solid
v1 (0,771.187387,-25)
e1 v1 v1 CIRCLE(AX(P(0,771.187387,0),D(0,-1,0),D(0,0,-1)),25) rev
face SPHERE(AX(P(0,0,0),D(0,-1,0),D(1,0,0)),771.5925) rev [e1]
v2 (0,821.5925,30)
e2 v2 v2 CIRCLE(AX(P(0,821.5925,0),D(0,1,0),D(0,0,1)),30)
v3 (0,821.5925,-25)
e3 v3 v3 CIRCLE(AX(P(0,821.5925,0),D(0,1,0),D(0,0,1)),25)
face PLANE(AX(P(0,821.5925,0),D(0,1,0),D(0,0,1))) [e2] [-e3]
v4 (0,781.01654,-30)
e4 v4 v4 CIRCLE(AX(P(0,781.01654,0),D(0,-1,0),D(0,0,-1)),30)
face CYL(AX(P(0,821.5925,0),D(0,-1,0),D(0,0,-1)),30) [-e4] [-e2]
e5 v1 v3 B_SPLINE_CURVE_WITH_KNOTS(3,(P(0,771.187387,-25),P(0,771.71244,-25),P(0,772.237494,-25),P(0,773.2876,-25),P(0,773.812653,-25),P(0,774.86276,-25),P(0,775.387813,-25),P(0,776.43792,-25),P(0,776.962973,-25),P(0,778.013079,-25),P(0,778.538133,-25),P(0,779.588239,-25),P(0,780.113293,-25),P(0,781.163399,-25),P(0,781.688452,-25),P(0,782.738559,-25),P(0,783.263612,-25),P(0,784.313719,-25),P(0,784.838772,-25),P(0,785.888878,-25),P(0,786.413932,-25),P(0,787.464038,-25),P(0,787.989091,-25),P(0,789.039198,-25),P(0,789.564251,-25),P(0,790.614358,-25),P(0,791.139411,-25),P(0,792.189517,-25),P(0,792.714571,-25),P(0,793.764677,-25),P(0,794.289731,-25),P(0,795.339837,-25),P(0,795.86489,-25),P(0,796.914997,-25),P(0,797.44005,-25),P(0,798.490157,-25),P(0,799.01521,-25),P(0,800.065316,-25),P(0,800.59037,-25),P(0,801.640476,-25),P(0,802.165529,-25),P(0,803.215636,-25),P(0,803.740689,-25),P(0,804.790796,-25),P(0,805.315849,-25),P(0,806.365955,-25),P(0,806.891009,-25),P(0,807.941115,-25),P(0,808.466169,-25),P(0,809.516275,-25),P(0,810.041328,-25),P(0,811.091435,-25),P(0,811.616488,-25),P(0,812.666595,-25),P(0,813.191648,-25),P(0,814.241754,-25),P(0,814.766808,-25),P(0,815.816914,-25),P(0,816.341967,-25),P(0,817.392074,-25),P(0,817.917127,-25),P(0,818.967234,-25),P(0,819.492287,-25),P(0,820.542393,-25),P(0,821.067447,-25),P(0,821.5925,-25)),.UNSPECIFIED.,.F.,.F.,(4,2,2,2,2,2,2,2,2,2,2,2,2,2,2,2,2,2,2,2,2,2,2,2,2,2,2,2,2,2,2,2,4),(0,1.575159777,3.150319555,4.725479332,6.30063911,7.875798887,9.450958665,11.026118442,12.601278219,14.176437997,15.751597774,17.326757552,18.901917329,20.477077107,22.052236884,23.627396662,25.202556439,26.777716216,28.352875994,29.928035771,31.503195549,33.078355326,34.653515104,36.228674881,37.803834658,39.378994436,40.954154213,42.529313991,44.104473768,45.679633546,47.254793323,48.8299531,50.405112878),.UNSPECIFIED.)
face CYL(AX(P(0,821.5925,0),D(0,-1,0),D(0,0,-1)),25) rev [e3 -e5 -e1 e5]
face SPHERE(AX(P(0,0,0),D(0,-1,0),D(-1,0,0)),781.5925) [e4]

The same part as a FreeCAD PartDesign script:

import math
import FreeCAD as App
import Part
import Sketcher

doc = App.newDocument("Part")
params = doc.addObject("Spreadsheet::Sheet", "Params")
for row, (alias, value) in enumerate([
    ("sketch1_height", "10 mm"),
    ("revolution_angle", "360 deg"),
    ("sketch2_diameter", "60 mm"),
    ("pad1_length", "50 mm"),
    ("sketch3_diameter", "50 mm"),
], start=1):
    params.set(f"A{row}", alias)
    params.set(f"B{row}", "=" + value)
    params.setAlias(f"B{row}", alias)

body = doc.addObject("PartDesign::Body", "Body")

# Sketch on XY plane
sketch1 = body.newObject("Sketcher::SketchObject", "Sketch")
sketch1.AttachmentSupport = (doc.getObject("XY_Plane"), [""])
sketch1.MapMode = "FlatFace"
sketch1.addGeometry([
    Part.LineSegment(App.Vector(0, 782, 0), App.Vector(0, 772, 0)),
    Part.ArcOfCircle(Part.Circle(App.Vector(0, 0, 0), App.Vector(0, 0, 1), 772), math.radians(-90), math.radians(90)),
    Part.LineSegment(App.Vector(0, -772, 0), App.Vector(0, -782, 0)),
    Part.ArcOfCircle(Part.Circle(App.Vector(0, 0, 0), App.Vector(0, 0, 1), 782), math.radians(-90), math.radians(90)),
], False)
sketch1.addConstraint([
    Sketcher.Constraint("Coincident", 0, 2, 1, 2),
    Sketcher.Constraint("Coincident", 1, 1, 2, 1),
    Sketcher.Constraint("Coincident", 2, 2, 3, 1),
    Sketcher.Constraint("Coincident", 3, 2, 0, 1),
    Sketcher.Constraint("Vertical", 0),
    Sketcher.Constraint("Vertical", 2),
    Sketcher.Constraint("Coincident", 1, 3, -1, 1),
    Sketcher.Constraint("Coincident", 3, 3, -1, 1),
    Sketcher.Constraint("PointOnObject", 0, 2, -2),
    Sketcher.Constraint("PointOnObject", 2, 2, -2),
    Sketcher.Constraint("DistanceY", 0, 2, 0, 1, 10.0),
    Sketcher.Constraint("Radius", 1, 771.5925),
])
sketch1.setExpression("Constraints[10]", "Params.sketch1_height")
revolution = body.newObject("PartDesign::Revolution", "Revolution")
revolution.Profile = sketch1
revolution.ReferenceAxis = (sketch1, ["V_Axis"])
revolution.setExpression("Angle", "Params.revolution_angle")

# Sketch on XZ plane
sketch2 = body.newObject("Sketcher::SketchObject", "Sketch001")
sketch2.AttachmentSupport = (doc.getObject("XZ_Plane"), [""])
sketch2.MapMode = "FlatFace"
sketch2.AttachmentOffset = App.Placement(App.Vector(0, 0, -771.5925), App.Rotation())
sketch2.addGeometry(Part.Circle(App.Vector(0, 0, 0), App.Vector(0, 0, 1), 30), False)
sketch2.addConstraint([
    Sketcher.Constraint("Coincident", 0, 3, -1, 1),
    Sketcher.Constraint("Diameter", 0, 60.0),
])
sketch2.setExpression("Constraints[1]", "Params.sketch2_diameter")
pad1 = body.newObject("PartDesign::Pad", "Pad")
pad1.Profile = sketch2
pad1.setExpression("Length", "Params.pad1_length")
pad1.Reversed = True

# Sketch on XZ plane
sketch3 = body.newObject("Sketcher::SketchObject", "Sketch002")
sketch3.AttachmentSupport = (doc.getObject("XZ_Plane"), [""])
sketch3.MapMode = "FlatFace"
sketch3.addGeometry(Part.Circle(App.Vector(0, 0, 0), App.Vector(0, 0, 1), 25), False)
sketch3.addConstraint([
    Sketcher.Constraint("Coincident", 0, 3, -1, 1),
    Sketcher.Constraint("Diameter", 0, 50.0),
])
sketch3.setExpression("Constraints[1]", "Params.sketch3_diameter")
pocket1 = body.newObject("PartDesign::Pocket", "Pocket")
pocket1.Profile = sketch3
pocket1.Type = "ThroughAll"

doc.recompute()
